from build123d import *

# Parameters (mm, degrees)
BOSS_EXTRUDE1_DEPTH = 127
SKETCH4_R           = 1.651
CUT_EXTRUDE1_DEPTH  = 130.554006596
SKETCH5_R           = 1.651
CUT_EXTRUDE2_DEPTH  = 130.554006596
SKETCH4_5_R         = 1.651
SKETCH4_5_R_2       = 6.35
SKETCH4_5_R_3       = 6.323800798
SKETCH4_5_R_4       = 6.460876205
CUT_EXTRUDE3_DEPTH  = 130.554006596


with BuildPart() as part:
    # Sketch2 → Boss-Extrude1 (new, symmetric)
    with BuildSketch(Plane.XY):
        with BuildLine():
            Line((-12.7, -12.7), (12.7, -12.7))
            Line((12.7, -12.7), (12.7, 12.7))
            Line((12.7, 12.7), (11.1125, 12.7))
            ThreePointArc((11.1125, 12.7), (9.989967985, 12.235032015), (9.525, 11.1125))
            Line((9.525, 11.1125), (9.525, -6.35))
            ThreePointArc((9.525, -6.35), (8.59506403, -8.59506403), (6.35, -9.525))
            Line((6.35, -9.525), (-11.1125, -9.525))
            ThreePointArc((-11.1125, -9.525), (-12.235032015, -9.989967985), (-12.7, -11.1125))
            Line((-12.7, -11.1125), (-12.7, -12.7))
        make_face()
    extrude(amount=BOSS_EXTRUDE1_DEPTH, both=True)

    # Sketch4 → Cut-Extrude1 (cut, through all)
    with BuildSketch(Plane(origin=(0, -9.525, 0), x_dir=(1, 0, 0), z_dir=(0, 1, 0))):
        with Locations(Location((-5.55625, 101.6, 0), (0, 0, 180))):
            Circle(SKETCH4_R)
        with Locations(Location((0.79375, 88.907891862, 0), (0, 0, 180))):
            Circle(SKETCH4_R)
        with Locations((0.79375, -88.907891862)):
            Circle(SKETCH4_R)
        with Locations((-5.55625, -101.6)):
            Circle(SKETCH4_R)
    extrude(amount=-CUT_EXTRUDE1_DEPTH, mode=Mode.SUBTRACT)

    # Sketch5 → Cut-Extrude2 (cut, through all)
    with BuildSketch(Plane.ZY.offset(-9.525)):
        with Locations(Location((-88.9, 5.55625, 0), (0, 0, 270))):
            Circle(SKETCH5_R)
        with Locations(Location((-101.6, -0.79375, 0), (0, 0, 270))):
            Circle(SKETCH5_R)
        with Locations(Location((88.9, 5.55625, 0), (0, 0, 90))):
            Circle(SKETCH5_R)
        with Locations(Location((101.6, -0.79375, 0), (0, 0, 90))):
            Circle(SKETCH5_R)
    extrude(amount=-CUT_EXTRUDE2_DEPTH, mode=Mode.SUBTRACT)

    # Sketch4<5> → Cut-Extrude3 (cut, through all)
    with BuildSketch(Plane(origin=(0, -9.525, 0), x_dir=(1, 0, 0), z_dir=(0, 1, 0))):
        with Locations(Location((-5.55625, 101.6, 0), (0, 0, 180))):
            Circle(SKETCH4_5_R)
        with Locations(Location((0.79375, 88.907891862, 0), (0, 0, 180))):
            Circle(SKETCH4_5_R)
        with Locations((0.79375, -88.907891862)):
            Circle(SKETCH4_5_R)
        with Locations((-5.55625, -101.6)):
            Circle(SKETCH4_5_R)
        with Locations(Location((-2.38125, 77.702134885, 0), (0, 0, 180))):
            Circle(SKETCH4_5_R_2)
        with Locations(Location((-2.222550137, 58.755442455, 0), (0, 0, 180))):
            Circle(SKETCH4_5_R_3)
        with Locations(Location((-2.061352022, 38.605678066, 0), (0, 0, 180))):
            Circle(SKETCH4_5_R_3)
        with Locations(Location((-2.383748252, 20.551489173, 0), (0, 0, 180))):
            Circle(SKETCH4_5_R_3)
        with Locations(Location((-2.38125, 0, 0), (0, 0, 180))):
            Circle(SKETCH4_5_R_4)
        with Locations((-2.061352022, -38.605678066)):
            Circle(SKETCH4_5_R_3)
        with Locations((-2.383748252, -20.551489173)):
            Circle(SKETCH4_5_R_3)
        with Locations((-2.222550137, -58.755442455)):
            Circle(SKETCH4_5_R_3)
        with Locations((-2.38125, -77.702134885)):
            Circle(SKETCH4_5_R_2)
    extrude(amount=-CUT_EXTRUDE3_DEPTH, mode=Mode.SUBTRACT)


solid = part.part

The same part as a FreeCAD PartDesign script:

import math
import FreeCAD as App
import Part
import Sketcher
from FreeCAD import Vector
Q = App.Units.Quantity

doc = App.newDocument("Part")
body = doc.addObject("PartDesign::Body", "Body")

sketch1 = body.newObject("Sketcher::SketchObject", "Sketch")
sketch1.AttachmentSupport = (doc.getObject("XY_Plane"), [""])
sketch1.MapMode = "FlatFace"
sketch1.addGeometry([
    Part.LineSegment(Vector(-12.7, -12.7, 0), Vector(12.7, -12.7, 0)),
    Part.LineSegment(Vector(12.7, -12.7, 0), Vector(12.7, 12.7, 0)),
    Part.LineSegment(Vector(12.7, 12.7, 0), Vector(11.1, 12.7, 0)),
    Part.ArcOfCircle(Part.Circle(Vector(11.1, 11.1, 0), Vector(0, 0, 1), 1.6), math.radians(90), math.radians(180)),
    Part.LineSegment(Vector(9.5, 11.1, 0), Vector(9.5, -6.3, 0)),
    Part.ArcOfCircle(Part.Circle(Vector(6.3, -6.3, 0), Vector(0, 0, 1), 3.2), math.radians(-90), math.radians(0)),
    Part.LineSegment(Vector(6.3, -9.5, 0), Vector(-11.1, -9.5, 0)),
    Part.ArcOfCircle(Part.Circle(Vector(-11.1, -11.1, 0), Vector(0, 0, 1), 1.6), math.radians(90), math.radians(180)),
    Part.LineSegment(Vector(-12.7, -11.1, 0), Vector(-12.7, -12.7, 0)),
], False)
sketch1.addConstraint([
    Sketcher.Constraint("Coincident", 0, 2, 1, 1),
    Sketcher.Constraint("Coincident", 1, 2, 2, 1),
    Sketcher.Constraint("Tangent", 2, 2, 3, 1),
    Sketcher.Constraint("Tangent", 3, 2, 4, 1),
    Sketcher.Constraint("Tangent", 4, 2, 5, 2),
    Sketcher.Constraint("Tangent", 5, 1, 6, 1),
    Sketcher.Constraint("Tangent", 6, 2, 7, 1),
    Sketcher.Constraint("Tangent", 7, 2, 8, 1),
    Sketcher.Constraint("Coincident", 8, 2, 0, 1),
    Sketcher.Constraint("Horizontal", 0),
    Sketcher.Constraint("Vertical", 1),
    Sketcher.Constraint("Horizontal", 2),
    Sketcher.Constraint("Vertical", 4),
    Sketcher.Constraint("Horizontal", 6),
    Sketcher.Constraint("Vertical", 8),
    Sketcher.Constraint("Equal", 3, 7),
    Sketcher.Constraint("Symmetric", 3, 3, 7, 3, -1, 1),
    Sketcher.Constraint("Symmetric", 1, 2, 8, 2, -1, 1),
    Sketcher.Constraint("Equal", 0, 1),
    Sketcher.Constraint("DistanceX", 0, 1, 0, 2, Q("1 in")),
    Sketcher.Constraint("Radius", 3, Q("0.0625 in")),
    Sketcher.Constraint("Radius", 5, Q("0.125 in")),
])
pad1 = body.newObject("PartDesign::Pad", "Pad")
pad1.Profile = sketch1
pad1.Length = Q("10 in")
pad1.Midplane = True

sketch2 = body.newObject("Sketcher::SketchObject", "Sketch001")
sketch2.AttachmentSupport = (doc.getObject("XZ_Plane"), [""])
sketch2.MapMode = "FlatFace"
sketch2.AttachmentOffset = App.Placement(Vector(0, 0, 0.375 * 25.4), App.Rotation())
sketch2.addGeometry([
    Part.Circle(Vector(-5.6, -101.6, 0), Vector(0, 0, 1), 1.7),
    Part.Circle(Vector(0.8, -88.9, 0), Vector(0, 0, 1), 1.7),
    Part.Circle(Vector(0.8, 88.9, 0), Vector(0, 0, 1), 1.7),
    Part.Circle(Vector(-5.6, 101.6, 0), Vector(0, 0, 1), 1.7),
], False)
sketch2.addConstraint([
    Sketcher.Constraint("Equal", 0, 1),
    Sketcher.Constraint("Equal", 1, 2),
    Sketcher.Constraint("Equal", 2, 3),
    Sketcher.Constraint("Symmetric", 1, 3, 2, 3, -1),
    Sketcher.Constraint("Symmetric", 0, 3, 3, 3, -1),
    Sketcher.Constraint("Diameter", 0, Q("0.13 in")),
    Sketcher.Constraint("DistanceY", 0, 3, -1, 1, Q("4 in")),
    Sketcher.Constraint("DistanceX", 0, 3, 1, 3, Q("0.25 in")),
    Sketcher.Constraint("DistanceX", 0, 3, -1, 1, Q("0.21875 in")),
    Sketcher.Constraint("DistanceY", 1, 3, -1, 1, Q("88.907892 mm")),
])
pocket1 = body.newObject("PartDesign::Pocket", "Pocket")
pocket1.Profile = sketch2
pocket1.Type = "ThroughAll"
pocket1.Reversed = True

sketch3 = body.newObject("Sketcher::SketchObject", "Sketch002")
sketch3.AttachmentSupport = (doc.getObject("YZ_Plane"), [""])
sketch3.MapMode = "FlatFace"
sketch3.AttachmentOffset = App.Placement(Vector(0, 0, 0.375 * 25.4), App.Rotation())
sketch3.addGeometry([
    Part.Circle(Vector(5.6, -88.9, 0), Vector(0, 0, 1), 1.7),
    Part.Circle(Vector(-0.8, -101.6, 0), Vector(0, 0, 1), 1.7),
    Part.Circle(Vector(5.6, 88.9, 0), Vector(0, 0, 1), 1.7),
    Part.Circle(Vector(-0.8, 101.6, 0), Vector(0, 0, 1), 1.7),
], False)
sketch3.addConstraint([
    Sketcher.Constraint("Equal", 0, 1),
    Sketcher.Constraint("Equal", 1, 2),
    Sketcher.Constraint("Equal", 2, 3),
    Sketcher.Constraint("Symmetric", 0, 3, 2, 3, -1),
    Sketcher.Constraint("Symmetric", 1, 3, 3, 3, -1),
    Sketcher.Constraint("Diameter", 0, Q("0.13 in")),
    Sketcher.Constraint("DistanceY", 1, 3, -1, 1, Q("4 in")),
    Sketcher.Constraint("DistanceY", 0, 3, 2, 3, Q("7 in")),
    Sketcher.Constraint("DistanceX", 1, 3, 0, 3, Q("0.25 in")),
    Sketcher.Constraint("DistanceX", -1, 1, 0, 3, Q("0.21875 in")),
])
pocket2 = body.newObject("PartDesign::Pocket", "Pocket001")
pocket2.Profile = sketch3
pocket2.Type = "ThroughAll"
pocket2.Reversed = True

sketch4 = body.newObject("Sketcher::SketchObject", "Sketch003")
sketch4.AttachmentSupport = (doc.getObject("XZ_Plane"), [""])
sketch4.MapMode = "FlatFace"
sketch4.AttachmentOffset = App.Placement(Vector(0, 0, 0.375 * 25.4), App.Rotation())
sketch4.addGeometry([
    Part.Circle(Vector(-5.6, -101.6, 0), Vector(0, 0, 1), 1.7),
    Part.Circle(Vector(0.8, -88.9, 0), Vector(0, 0, 1), 1.7),
    Part.Circle(Vector(0.8, 88.9, 0), Vector(0, 0, 1), 1.7),
    Part.Circle(Vector(-5.6, 101.6, 0), Vector(0, 0, 1), 1.7),
    Part.Circle(Vector(-2.4, -77.7, 0), Vector(0, 0, 1), 6.3),
    Part.Circle(Vector(-2.2, -58.8, 0), Vector(0, 0, 1), 6.3),
    Part.Circle(Vector(-2.1, -38.6, 0), Vector(0, 0, 1), 6.3),
    Part.Circle(Vector(-2.4, -20.6, 0), Vector(0, 0, 1), 6.3),
    Part.Circle(Vector(-2.4, 0, 0), Vector(0, 0, 1), 6.5),
    Part.Circle(Vector(-2.1, 38.6, 0), Vector(0, 0, 1), 6.3),
    Part.Circle(Vector(-2.4, 20.6, 0), Vector(0, 0, 1), 6.3),
    Part.Circle(Vector(-2.2, 58.8, 0), Vector(0, 0, 1), 6.3),
    Part.Circle(Vector(-2.4, 77.7, 0), Vector(0, 0, 1), 6.3),
], False)
sketch4.addConstraint([
    Sketcher.Constraint("Equal", 0, 1),
    Sketcher.Constraint("Equal", 1, 2),
    Sketcher.Constraint("Equal", 2, 3),
    Sketcher.Constraint("Equal", 5, 6),
    Sketcher.Constraint("Equal", 6, 7),
    Sketcher.Constraint("Equal", 7, 9),
    Sketcher.Constraint("Equal", 9, 10),
    Sketcher.Constraint("Equal", 10, 11),
    Sketcher.Constraint("Equal", 4, 12),
    Sketcher.Constraint("Symmetric", 1, 3, 2, 3, -1),
    Sketcher.Constraint("Symmetric", 0, 3, 3, 3, -1),
    Sketcher.Constraint("Symmetric", 6, 3, 9, 3, -1),
    Sketcher.Constraint("Symmetric", 7, 3, 10, 3, -1),
    Sketcher.Constraint("Symmetric", 5, 3, 11, 3, -1),
    Sketcher.Constraint("Symmetric", 4, 3, 12, 3, -1),
    Sketcher.Constraint("PointOnObject", 8, 3, -1),
    Sketcher.Constraint("Vertical", 4, 3, 8, 3),
    Sketcher.Constraint("Diameter", 4, Q("0.5 in")),
    Sketcher.Constraint("Diameter", 0, Q("0.13 in")),
    Sketcher.Constraint("DistanceY", 0, 3, -1, 1, Q("4 in")),
    Sketcher.Constraint("Diameter", 5, Q("12.647602 mm")),
    Sketcher.Constraint("DistanceX", 0, 3, 1, 3, Q("0.25 in")),
    Sketcher.Constraint("DistanceX", 0, 3, -1, 1, Q("0.21875 in")),
    Sketcher.Constraint("DistanceX", 4, 3, -1, 1, Q("0.09375 in")),
    Sketcher.Constraint("Diameter", 8, Q("12.921752 mm")),
    Sketcher.Constraint("DistanceX", 4, 3, 5, 3, Q("0.1587 mm")),
    Sketcher.Constraint("DistanceX", 5, 3, 6, 3, Q("0.161198 mm")),
    Sketcher.Constraint("DistanceX", 7, 3, 5, 3, Q("0.161198 mm")),
    Sketcher.Constraint("DistanceY", 1, 3, -1, 1, Q("88.907892 mm")),
    Sketcher.Constraint("DistanceY", 6, 3, -1, 1, Q("38.605678 mm")),
    Sketcher.Constraint("DistanceY", 7, 3, -1, 1, Q("20.551489 mm")),
    Sketcher.Constraint("DistanceY", 1, 3, 5, 3, Q("30.152449 mm")),
    Sketcher.Constraint("DistanceY", 4, 3, -1, 1, Q("77.702135 mm")),
])
pocket3 = body.newObject("PartDesign::Pocket", "Pocket002")
pocket3.Profile = sketch4
pocket3.Type = "ThroughAll"
pocket3.Reversed = True

doc.recompute()
